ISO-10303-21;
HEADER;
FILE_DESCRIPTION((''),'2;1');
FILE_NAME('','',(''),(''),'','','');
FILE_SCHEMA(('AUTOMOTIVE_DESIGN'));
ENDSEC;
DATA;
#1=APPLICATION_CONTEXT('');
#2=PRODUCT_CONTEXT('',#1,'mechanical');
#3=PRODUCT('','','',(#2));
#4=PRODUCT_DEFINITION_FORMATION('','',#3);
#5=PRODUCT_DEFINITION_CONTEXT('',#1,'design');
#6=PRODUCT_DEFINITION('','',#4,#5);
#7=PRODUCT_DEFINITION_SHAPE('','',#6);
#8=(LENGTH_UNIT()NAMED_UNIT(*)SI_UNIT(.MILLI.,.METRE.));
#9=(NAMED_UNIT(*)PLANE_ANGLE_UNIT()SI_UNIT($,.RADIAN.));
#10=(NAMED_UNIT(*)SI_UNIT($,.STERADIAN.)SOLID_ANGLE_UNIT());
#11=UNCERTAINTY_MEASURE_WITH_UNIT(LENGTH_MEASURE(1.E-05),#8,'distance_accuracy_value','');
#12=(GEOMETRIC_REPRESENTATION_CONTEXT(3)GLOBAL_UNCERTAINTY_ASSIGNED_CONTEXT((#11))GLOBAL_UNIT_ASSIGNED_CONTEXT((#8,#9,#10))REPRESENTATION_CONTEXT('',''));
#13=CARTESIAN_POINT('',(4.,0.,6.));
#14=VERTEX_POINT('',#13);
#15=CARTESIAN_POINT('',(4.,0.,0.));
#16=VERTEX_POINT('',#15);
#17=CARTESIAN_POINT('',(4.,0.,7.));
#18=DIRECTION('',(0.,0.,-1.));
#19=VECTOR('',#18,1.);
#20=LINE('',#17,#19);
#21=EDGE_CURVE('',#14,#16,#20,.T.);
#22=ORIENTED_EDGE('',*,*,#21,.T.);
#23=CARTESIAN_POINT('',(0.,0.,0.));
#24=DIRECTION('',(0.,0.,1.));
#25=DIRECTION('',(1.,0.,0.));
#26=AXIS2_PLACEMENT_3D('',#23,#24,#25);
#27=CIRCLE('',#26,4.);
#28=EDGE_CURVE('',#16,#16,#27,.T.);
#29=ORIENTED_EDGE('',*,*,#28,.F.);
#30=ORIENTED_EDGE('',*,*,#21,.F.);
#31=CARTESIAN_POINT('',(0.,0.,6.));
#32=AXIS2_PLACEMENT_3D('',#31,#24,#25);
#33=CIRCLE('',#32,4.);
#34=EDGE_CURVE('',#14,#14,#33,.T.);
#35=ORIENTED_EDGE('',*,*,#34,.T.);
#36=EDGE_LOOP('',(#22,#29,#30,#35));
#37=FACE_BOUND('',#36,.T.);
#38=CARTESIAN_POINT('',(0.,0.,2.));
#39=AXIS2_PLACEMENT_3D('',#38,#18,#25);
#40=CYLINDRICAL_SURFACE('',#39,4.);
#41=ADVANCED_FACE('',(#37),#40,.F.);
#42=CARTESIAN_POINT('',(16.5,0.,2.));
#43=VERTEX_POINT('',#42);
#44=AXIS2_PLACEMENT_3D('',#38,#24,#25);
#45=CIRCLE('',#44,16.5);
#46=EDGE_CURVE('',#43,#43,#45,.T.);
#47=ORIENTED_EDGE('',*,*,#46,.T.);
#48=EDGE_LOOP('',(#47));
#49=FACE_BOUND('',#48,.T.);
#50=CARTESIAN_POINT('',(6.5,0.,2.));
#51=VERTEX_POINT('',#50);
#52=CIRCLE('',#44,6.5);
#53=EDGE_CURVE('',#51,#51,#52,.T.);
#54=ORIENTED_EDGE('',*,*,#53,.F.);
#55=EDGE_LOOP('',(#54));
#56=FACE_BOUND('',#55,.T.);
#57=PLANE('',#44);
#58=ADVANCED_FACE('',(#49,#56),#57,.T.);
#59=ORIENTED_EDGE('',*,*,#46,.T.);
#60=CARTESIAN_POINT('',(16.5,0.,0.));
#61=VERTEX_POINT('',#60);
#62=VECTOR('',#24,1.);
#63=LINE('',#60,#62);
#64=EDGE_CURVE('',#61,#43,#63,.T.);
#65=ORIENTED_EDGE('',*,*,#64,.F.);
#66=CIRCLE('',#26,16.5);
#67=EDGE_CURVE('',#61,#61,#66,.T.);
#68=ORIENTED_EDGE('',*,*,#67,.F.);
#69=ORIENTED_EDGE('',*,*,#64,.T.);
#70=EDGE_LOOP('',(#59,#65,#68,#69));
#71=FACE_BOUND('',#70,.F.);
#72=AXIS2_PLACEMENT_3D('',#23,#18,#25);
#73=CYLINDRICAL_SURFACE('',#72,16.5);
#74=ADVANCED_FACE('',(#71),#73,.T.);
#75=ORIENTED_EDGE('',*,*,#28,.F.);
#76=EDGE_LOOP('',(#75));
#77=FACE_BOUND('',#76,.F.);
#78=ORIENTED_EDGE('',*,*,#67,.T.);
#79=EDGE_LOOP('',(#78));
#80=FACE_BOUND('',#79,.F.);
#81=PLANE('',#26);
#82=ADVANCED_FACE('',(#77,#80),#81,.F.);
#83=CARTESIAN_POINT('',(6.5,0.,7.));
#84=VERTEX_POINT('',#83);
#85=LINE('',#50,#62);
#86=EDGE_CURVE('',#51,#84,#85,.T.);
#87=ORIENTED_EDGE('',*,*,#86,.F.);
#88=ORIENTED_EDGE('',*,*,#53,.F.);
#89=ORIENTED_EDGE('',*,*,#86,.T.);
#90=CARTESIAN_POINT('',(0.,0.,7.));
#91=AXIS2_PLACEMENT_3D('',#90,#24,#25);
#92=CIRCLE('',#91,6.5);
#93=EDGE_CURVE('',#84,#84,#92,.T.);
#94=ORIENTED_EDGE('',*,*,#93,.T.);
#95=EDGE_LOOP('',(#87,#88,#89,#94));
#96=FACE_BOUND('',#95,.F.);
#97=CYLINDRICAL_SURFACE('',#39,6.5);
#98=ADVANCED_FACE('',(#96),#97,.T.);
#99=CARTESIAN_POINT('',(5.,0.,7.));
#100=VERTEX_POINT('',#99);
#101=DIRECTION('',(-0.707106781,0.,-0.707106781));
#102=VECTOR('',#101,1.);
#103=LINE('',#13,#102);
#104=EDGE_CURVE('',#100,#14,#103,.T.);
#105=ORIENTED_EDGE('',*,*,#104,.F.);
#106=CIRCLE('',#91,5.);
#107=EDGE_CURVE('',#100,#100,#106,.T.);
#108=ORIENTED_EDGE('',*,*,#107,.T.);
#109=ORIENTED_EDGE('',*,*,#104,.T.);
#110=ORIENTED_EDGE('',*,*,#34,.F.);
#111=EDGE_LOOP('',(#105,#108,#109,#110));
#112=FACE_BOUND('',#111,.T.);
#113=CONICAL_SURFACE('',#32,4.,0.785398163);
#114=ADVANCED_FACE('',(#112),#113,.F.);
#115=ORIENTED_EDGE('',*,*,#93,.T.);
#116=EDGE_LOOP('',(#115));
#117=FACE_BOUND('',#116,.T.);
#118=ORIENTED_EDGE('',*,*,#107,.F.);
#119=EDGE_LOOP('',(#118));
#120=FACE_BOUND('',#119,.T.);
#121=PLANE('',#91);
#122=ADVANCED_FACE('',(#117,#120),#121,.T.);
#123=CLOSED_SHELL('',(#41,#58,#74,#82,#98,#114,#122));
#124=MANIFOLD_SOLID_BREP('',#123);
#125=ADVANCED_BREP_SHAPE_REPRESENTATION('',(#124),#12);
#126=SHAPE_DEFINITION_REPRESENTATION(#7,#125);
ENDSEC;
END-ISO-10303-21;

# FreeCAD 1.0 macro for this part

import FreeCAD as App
import Part
import Sketcher
Q = App.Units.Quantity


def edges_at(feature, points):
    """Names of the edges that pass closest to the given points."""
    edges = feature.Shape.Edges
    near = lambda p: min(range(len(edges)), key=lambda i: edges[i].distToShape(Part.Vertex(*p))[0])
    return sorted({f"Edge{near(p) + 1}" for p in points})

doc = App.newDocument("Part")
body = doc.addObject("PartDesign::Body", "Body")

sketch1 = body.newObject("Sketcher::SketchObject", "Sketch")
sketch1.AttachmentSupport = (doc.getObject("XY_Plane"), [""])
sketch1.MapMode = "FlatFace"
sketch1.addGeometry(Part.Circle(App.Vector(0, 0, 0), App.Vector(0, 0, 1), 16.5), False)
sketch1.addGeometry(Part.Circle(App.Vector(0, 0, 0), App.Vector(0, 0, 1), 4), False)
sketch1.addConstraint(Sketcher.Constraint("Coincident", 0, 3, -1, 1))
sketch1.addConstraint(Sketcher.Constraint("Coincident", 1, 3, -1, 1))
sketch1.addConstraint(Sketcher.Constraint("Diameter", 0, Q("33 mm")))
sketch1.addConstraint(Sketcher.Constraint("Diameter", 1, Q("8 mm")))
pad1 = body.newObject("PartDesign::Pad", "Pad")
pad1.Profile = sketch1
pad1.Length = 2

sketch2 = body.newObject("Sketcher::SketchObject", "Sketch001")
sketch2.AttachmentSupport = (doc.getObject("XY_Plane"), [""])
sketch2.MapMode = "FlatFace"
sketch2.AttachmentOffset = App.Placement(App.Vector(0, 0, 2), App.Rotation())
sketch2.addGeometry(Part.Circle(App.Vector(0, 0, 0), App.Vector(0, 0, 1), 6.5), False)
sketch2.addGeometry(Part.Circle(App.Vector(0, 0, 0), App.Vector(0, 0, 1), 4), False)
sketch2.addConstraint(Sketcher.Constraint("Coincident", 0, 3, -1, 1))
sketch2.addConstraint(Sketcher.Constraint("Coincident", 1, 3, -1, 1))
sketch2.addConstraint(Sketcher.Constraint("Diameter", 0, Q("13 mm")))
sketch2.addConstraint(Sketcher.Constraint("Diameter", 1, Q("8 mm")))
pad2 = body.newObject("PartDesign::Pad", "Pad001")
pad2.Profile = sketch2
pad2.Length = 5
doc.recompute()

chamfer = body.newObject("PartDesign::Chamfer", "Chamfer")
chamfer.Base = (pad2, edges_at(pad2, [(-4, 0, 7)]))
chamfer.Size = 1

doc.recompute()
